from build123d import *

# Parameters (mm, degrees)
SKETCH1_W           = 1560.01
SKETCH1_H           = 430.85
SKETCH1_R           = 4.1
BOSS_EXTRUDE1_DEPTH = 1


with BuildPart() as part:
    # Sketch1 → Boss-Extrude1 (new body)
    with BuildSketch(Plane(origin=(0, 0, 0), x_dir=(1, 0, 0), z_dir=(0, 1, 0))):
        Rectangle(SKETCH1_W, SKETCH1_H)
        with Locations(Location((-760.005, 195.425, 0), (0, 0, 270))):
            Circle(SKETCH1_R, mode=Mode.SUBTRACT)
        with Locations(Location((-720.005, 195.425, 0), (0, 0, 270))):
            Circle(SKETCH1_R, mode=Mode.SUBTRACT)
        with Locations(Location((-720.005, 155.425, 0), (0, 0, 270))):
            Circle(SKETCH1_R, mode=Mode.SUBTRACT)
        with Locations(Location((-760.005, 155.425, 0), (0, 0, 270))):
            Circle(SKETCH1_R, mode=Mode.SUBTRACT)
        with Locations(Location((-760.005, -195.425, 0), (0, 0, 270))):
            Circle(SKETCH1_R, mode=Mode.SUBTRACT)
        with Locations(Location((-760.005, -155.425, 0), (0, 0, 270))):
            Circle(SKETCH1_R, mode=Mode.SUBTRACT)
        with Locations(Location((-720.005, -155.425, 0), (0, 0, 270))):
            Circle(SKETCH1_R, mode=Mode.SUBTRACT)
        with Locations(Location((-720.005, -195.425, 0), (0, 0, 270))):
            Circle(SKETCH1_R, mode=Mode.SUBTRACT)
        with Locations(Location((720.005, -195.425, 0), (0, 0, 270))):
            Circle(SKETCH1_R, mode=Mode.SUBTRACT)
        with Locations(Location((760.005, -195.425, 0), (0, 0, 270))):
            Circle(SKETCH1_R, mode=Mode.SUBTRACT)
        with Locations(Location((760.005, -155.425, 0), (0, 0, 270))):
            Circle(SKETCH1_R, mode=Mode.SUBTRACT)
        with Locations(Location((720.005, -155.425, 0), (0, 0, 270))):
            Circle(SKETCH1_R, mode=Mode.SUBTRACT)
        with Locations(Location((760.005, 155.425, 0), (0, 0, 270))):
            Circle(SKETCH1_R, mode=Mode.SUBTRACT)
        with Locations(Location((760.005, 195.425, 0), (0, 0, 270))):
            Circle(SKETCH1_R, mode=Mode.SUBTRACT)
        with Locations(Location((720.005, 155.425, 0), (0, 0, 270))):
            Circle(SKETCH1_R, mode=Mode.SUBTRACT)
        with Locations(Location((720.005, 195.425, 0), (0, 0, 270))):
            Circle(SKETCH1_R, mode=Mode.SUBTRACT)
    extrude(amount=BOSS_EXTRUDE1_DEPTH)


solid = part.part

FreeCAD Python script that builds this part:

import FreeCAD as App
import Part
import Sketcher
from FreeCAD import Vector

doc = App.newDocument("Part")
params = doc.addObject("Spreadsheet::Sheet", "Params")
for row, (alias, value) in enumerate([
    ("sketch1_diameter", "8.2 mm"),
    ("sketch1_width", "1560.01 mm"),
    ("sketch1_height", "430.85 mm"),
    ("pad1_length", "1 mm"),
], start=1):
    params.set(f"A{row}", alias)
    params.set(f"B{row}", "=" + value)
    params.setAlias(f"B{row}", alias)

body = doc.addObject("PartDesign::Body", "Body")

# Sketch on XZ plane
sketch1 = doc.addObject("Sketcher::SketchObject", "Sketch")
body.addObject(sketch1)
sketch1.AttachmentSupport = (doc.XZ_Plane, [""])
sketch1.MapMode = "FlatFace"
sketch1.addGeometry(Part.LineSegment(Vector(-780, -215.4, 0), Vector(-780, 215.4, 0)), False)
sketch1.addGeometry(Part.LineSegment(Vector(-780, 215.4, 0), Vector(780, 215.4, 0)), False)
sketch1.addGeometry(Part.LineSegment(Vector(780, 215.4, 0), Vector(780, -215.4, 0)), False)
sketch1.addGeometry(Part.LineSegment(Vector(780, -215.4, 0), Vector(-780, -215.4, 0)), False)
sketch1.addGeometry(Part.Circle(Vector(-760, 195.4, 0), Vector(0, 0, 1), 4.1), False)
sketch1.addGeometry(Part.Circle(Vector(-720, 195.4, 0), Vector(0, 0, 1), 4.1), False)
sketch1.addGeometry(Part.Circle(Vector(-760, 155.4, 0), Vector(0, 0, 1), 4.1), False)
sketch1.addGeometry(Part.Circle(Vector(-720, 155.4, 0), Vector(0, 0, 1), 4.1), False)
sketch1.addGeometry(Part.Circle(Vector(720, 195.4, 0), Vector(0, 0, 1), 4.1), False)
sketch1.addGeometry(Part.Circle(Vector(760, 195.4, 0), Vector(0, 0, 1), 4.1), False)
sketch1.addGeometry(Part.Circle(Vector(720, 155.4, 0), Vector(0, 0, 1), 4.1), False)
sketch1.addGeometry(Part.Circle(Vector(760, 155.4, 0), Vector(0, 0, 1), 4.1), False)
sketch1.addGeometry(Part.Circle(Vector(-760, -155.4, 0), Vector(0, 0, 1), 4.1), False)
sketch1.addGeometry(Part.Circle(Vector(-720, -155.4, 0), Vector(0, 0, 1), 4.1), False)
sketch1.addGeometry(Part.Circle(Vector(-760, -195.4, 0), Vector(0, 0, 1), 4.1), False)
sketch1.addGeometry(Part.Circle(Vector(-720, -195.4, 0), Vector(0, 0, 1), 4.1), False)
sketch1.addGeometry(Part.Circle(Vector(720, -155.4, 0), Vector(0, 0, 1), 4.1), False)
sketch1.addGeometry(Part.Circle(Vector(760, -155.4, 0), Vector(0, 0, 1), 4.1), False)
sketch1.addGeometry(Part.Circle(Vector(720, -195.4, 0), Vector(0, 0, 1), 4.1), False)
sketch1.addGeometry(Part.Circle(Vector(760, -195.4, 0), Vector(0, 0, 1), 4.1), False)
sketch1.addConstraint(Sketcher.Constraint("Coincident", 0, 2, 1, 1))
sketch1.addConstraint(Sketcher.Constraint("Coincident", 1, 2, 2, 1))
sketch1.addConstraint(Sketcher.Constraint("Coincident", 2, 2, 3, 1))
sketch1.addConstraint(Sketcher.Constraint("Coincident", 3, 2, 0, 1))
sketch1.addConstraint(Sketcher.Constraint("Vertical", 0))
sketch1.addConstraint(Sketcher.Constraint("Horizontal", 1))
sketch1.addConstraint(Sketcher.Constraint("Vertical", 2))
sketch1.addConstraint(Sketcher.Constraint("Horizontal", 3))
sketch1.addConstraint(Sketcher.Constraint("Equal", 4, 5))
sketch1.addConstraint(Sketcher.Constraint("Equal", 5, 6))
sketch1.addConstraint(Sketcher.Constraint("Equal", 6, 7))
sketch1.addConstraint(Sketcher.Constraint("Equal", 7, 8))
sketch1.addConstraint(Sketcher.Constraint("Equal", 8, 9))
sketch1.addConstraint(Sketcher.Constraint("Equal", 9, 10))
sketch1.addConstraint(Sketcher.Constraint("Equal", 10, 11))
sketch1.addConstraint(Sketcher.Constraint("Equal", 11, 12))
sketch1.addConstraint(Sketcher.Constraint("Equal", 12, 13))
sketch1.addConstraint(Sketcher.Constraint("Equal", 13, 14))
sketch1.addConstraint(Sketcher.Constraint("Equal", 14, 15))
sketch1.addConstraint(Sketcher.Constraint("Equal", 15, 16))
sketch1.addConstraint(Sketcher.Constraint("Equal", 16, 17))
sketch1.addConstraint(Sketcher.Constraint("Equal", 17, 18))
sketch1.addConstraint(Sketcher.Constraint("Equal", 18, 19))
sketch1.addConstraint(Sketcher.Constraint("Symmetric", 11, 3, 12, 3, -1, 1))
sketch1.addConstraint(Sketcher.Constraint("Symmetric", 10, 3, 13, 3, -1, 1))
sketch1.addConstraint(Sketcher.Constraint("Symmetric", 9, 3, 14, 3, -1, 1))
sketch1.addConstraint(Sketcher.Constraint("Symmetric", 8, 3, 15, 3, -1, 1))
sketch1.addConstraint(Sketcher.Constraint("Symmetric", 7, 3, 16, 3, -1, 1))
sketch1.addConstraint(Sketcher.Constraint("Symmetric", 6, 3, 17, 3, -1, 1))
sketch1.addConstraint(Sketcher.Constraint("Symmetric", 5, 3, 18, 3, -1, 1))
sketch1.addConstraint(Sketcher.Constraint("Symmetric", 4, 3, 19, 3, -1, 1))
sketch1.addConstraint(Sketcher.Constraint("Symmetric", 0, 2, 2, 2, -1, 1))
sketch1.addConstraint(Sketcher.Constraint("Symmetric", 5, 3, 8, 3, -2))
sketch1.addConstraint(Sketcher.Constraint("Symmetric", 4, 3, 9, 3, -2))
sketch1.addConstraint(Sketcher.Constraint("Symmetric", 7, 3, 10, 3, -2))
sketch1.addConstraint(Sketcher.Constraint("Symmetric", 6, 3, 11, 3, -2))
sketch1.addConstraint(Sketcher.Constraint("Horizontal", 4, 3, 5, 3))
sketch1.addConstraint(Sketcher.Constraint("Horizontal", 6, 3, 7, 3))
sketch1.addConstraint(Sketcher.Constraint("Vertical", 4, 3, 6, 3))
sketch1.addConstraint(Sketcher.Constraint("Vertical", 5, 3, 7, 3))
sketch1.addConstraint(Sketcher.Constraint("Diameter", 4, 8.2))
sketch1.addConstraint(Sketcher.Constraint("DistanceX", 4, 3, 5, 3, 40.0))
sketch1.addConstraint(Sketcher.Constraint("DistanceY", 6, 3, 4, 3, 40.0))
sketch1.addConstraint(Sketcher.Constraint("DistanceX", 0, 2, 4, 3, 20.0))
sketch1.addConstraint(Sketcher.Constraint("DistanceY", 4, 3, 0, 2, 20.0))
sketch1.addConstraint(Sketcher.Constraint("DistanceX", 1, 1, 1, 2, 1560.01))
sketch1.addConstraint(Sketcher.Constraint("DistanceY", 0, 1, 0, 2, 430.85))
sketch1.setExpression("Constraints[40]", "Params.sketch1_diameter")
sketch1.setExpression("Constraints[45]", "Params.sketch1_width")
sketch1.setExpression("Constraints[46]", "Params.sketch1_height")
pad1 = doc.addObject("PartDesign::Pad", "Pad")
body.addObject(pad1)
pad1.Profile = sketch1
pad1.setExpression("Length", "Params.pad1_length")
pad1.Reversed = True

doc.recompute()
